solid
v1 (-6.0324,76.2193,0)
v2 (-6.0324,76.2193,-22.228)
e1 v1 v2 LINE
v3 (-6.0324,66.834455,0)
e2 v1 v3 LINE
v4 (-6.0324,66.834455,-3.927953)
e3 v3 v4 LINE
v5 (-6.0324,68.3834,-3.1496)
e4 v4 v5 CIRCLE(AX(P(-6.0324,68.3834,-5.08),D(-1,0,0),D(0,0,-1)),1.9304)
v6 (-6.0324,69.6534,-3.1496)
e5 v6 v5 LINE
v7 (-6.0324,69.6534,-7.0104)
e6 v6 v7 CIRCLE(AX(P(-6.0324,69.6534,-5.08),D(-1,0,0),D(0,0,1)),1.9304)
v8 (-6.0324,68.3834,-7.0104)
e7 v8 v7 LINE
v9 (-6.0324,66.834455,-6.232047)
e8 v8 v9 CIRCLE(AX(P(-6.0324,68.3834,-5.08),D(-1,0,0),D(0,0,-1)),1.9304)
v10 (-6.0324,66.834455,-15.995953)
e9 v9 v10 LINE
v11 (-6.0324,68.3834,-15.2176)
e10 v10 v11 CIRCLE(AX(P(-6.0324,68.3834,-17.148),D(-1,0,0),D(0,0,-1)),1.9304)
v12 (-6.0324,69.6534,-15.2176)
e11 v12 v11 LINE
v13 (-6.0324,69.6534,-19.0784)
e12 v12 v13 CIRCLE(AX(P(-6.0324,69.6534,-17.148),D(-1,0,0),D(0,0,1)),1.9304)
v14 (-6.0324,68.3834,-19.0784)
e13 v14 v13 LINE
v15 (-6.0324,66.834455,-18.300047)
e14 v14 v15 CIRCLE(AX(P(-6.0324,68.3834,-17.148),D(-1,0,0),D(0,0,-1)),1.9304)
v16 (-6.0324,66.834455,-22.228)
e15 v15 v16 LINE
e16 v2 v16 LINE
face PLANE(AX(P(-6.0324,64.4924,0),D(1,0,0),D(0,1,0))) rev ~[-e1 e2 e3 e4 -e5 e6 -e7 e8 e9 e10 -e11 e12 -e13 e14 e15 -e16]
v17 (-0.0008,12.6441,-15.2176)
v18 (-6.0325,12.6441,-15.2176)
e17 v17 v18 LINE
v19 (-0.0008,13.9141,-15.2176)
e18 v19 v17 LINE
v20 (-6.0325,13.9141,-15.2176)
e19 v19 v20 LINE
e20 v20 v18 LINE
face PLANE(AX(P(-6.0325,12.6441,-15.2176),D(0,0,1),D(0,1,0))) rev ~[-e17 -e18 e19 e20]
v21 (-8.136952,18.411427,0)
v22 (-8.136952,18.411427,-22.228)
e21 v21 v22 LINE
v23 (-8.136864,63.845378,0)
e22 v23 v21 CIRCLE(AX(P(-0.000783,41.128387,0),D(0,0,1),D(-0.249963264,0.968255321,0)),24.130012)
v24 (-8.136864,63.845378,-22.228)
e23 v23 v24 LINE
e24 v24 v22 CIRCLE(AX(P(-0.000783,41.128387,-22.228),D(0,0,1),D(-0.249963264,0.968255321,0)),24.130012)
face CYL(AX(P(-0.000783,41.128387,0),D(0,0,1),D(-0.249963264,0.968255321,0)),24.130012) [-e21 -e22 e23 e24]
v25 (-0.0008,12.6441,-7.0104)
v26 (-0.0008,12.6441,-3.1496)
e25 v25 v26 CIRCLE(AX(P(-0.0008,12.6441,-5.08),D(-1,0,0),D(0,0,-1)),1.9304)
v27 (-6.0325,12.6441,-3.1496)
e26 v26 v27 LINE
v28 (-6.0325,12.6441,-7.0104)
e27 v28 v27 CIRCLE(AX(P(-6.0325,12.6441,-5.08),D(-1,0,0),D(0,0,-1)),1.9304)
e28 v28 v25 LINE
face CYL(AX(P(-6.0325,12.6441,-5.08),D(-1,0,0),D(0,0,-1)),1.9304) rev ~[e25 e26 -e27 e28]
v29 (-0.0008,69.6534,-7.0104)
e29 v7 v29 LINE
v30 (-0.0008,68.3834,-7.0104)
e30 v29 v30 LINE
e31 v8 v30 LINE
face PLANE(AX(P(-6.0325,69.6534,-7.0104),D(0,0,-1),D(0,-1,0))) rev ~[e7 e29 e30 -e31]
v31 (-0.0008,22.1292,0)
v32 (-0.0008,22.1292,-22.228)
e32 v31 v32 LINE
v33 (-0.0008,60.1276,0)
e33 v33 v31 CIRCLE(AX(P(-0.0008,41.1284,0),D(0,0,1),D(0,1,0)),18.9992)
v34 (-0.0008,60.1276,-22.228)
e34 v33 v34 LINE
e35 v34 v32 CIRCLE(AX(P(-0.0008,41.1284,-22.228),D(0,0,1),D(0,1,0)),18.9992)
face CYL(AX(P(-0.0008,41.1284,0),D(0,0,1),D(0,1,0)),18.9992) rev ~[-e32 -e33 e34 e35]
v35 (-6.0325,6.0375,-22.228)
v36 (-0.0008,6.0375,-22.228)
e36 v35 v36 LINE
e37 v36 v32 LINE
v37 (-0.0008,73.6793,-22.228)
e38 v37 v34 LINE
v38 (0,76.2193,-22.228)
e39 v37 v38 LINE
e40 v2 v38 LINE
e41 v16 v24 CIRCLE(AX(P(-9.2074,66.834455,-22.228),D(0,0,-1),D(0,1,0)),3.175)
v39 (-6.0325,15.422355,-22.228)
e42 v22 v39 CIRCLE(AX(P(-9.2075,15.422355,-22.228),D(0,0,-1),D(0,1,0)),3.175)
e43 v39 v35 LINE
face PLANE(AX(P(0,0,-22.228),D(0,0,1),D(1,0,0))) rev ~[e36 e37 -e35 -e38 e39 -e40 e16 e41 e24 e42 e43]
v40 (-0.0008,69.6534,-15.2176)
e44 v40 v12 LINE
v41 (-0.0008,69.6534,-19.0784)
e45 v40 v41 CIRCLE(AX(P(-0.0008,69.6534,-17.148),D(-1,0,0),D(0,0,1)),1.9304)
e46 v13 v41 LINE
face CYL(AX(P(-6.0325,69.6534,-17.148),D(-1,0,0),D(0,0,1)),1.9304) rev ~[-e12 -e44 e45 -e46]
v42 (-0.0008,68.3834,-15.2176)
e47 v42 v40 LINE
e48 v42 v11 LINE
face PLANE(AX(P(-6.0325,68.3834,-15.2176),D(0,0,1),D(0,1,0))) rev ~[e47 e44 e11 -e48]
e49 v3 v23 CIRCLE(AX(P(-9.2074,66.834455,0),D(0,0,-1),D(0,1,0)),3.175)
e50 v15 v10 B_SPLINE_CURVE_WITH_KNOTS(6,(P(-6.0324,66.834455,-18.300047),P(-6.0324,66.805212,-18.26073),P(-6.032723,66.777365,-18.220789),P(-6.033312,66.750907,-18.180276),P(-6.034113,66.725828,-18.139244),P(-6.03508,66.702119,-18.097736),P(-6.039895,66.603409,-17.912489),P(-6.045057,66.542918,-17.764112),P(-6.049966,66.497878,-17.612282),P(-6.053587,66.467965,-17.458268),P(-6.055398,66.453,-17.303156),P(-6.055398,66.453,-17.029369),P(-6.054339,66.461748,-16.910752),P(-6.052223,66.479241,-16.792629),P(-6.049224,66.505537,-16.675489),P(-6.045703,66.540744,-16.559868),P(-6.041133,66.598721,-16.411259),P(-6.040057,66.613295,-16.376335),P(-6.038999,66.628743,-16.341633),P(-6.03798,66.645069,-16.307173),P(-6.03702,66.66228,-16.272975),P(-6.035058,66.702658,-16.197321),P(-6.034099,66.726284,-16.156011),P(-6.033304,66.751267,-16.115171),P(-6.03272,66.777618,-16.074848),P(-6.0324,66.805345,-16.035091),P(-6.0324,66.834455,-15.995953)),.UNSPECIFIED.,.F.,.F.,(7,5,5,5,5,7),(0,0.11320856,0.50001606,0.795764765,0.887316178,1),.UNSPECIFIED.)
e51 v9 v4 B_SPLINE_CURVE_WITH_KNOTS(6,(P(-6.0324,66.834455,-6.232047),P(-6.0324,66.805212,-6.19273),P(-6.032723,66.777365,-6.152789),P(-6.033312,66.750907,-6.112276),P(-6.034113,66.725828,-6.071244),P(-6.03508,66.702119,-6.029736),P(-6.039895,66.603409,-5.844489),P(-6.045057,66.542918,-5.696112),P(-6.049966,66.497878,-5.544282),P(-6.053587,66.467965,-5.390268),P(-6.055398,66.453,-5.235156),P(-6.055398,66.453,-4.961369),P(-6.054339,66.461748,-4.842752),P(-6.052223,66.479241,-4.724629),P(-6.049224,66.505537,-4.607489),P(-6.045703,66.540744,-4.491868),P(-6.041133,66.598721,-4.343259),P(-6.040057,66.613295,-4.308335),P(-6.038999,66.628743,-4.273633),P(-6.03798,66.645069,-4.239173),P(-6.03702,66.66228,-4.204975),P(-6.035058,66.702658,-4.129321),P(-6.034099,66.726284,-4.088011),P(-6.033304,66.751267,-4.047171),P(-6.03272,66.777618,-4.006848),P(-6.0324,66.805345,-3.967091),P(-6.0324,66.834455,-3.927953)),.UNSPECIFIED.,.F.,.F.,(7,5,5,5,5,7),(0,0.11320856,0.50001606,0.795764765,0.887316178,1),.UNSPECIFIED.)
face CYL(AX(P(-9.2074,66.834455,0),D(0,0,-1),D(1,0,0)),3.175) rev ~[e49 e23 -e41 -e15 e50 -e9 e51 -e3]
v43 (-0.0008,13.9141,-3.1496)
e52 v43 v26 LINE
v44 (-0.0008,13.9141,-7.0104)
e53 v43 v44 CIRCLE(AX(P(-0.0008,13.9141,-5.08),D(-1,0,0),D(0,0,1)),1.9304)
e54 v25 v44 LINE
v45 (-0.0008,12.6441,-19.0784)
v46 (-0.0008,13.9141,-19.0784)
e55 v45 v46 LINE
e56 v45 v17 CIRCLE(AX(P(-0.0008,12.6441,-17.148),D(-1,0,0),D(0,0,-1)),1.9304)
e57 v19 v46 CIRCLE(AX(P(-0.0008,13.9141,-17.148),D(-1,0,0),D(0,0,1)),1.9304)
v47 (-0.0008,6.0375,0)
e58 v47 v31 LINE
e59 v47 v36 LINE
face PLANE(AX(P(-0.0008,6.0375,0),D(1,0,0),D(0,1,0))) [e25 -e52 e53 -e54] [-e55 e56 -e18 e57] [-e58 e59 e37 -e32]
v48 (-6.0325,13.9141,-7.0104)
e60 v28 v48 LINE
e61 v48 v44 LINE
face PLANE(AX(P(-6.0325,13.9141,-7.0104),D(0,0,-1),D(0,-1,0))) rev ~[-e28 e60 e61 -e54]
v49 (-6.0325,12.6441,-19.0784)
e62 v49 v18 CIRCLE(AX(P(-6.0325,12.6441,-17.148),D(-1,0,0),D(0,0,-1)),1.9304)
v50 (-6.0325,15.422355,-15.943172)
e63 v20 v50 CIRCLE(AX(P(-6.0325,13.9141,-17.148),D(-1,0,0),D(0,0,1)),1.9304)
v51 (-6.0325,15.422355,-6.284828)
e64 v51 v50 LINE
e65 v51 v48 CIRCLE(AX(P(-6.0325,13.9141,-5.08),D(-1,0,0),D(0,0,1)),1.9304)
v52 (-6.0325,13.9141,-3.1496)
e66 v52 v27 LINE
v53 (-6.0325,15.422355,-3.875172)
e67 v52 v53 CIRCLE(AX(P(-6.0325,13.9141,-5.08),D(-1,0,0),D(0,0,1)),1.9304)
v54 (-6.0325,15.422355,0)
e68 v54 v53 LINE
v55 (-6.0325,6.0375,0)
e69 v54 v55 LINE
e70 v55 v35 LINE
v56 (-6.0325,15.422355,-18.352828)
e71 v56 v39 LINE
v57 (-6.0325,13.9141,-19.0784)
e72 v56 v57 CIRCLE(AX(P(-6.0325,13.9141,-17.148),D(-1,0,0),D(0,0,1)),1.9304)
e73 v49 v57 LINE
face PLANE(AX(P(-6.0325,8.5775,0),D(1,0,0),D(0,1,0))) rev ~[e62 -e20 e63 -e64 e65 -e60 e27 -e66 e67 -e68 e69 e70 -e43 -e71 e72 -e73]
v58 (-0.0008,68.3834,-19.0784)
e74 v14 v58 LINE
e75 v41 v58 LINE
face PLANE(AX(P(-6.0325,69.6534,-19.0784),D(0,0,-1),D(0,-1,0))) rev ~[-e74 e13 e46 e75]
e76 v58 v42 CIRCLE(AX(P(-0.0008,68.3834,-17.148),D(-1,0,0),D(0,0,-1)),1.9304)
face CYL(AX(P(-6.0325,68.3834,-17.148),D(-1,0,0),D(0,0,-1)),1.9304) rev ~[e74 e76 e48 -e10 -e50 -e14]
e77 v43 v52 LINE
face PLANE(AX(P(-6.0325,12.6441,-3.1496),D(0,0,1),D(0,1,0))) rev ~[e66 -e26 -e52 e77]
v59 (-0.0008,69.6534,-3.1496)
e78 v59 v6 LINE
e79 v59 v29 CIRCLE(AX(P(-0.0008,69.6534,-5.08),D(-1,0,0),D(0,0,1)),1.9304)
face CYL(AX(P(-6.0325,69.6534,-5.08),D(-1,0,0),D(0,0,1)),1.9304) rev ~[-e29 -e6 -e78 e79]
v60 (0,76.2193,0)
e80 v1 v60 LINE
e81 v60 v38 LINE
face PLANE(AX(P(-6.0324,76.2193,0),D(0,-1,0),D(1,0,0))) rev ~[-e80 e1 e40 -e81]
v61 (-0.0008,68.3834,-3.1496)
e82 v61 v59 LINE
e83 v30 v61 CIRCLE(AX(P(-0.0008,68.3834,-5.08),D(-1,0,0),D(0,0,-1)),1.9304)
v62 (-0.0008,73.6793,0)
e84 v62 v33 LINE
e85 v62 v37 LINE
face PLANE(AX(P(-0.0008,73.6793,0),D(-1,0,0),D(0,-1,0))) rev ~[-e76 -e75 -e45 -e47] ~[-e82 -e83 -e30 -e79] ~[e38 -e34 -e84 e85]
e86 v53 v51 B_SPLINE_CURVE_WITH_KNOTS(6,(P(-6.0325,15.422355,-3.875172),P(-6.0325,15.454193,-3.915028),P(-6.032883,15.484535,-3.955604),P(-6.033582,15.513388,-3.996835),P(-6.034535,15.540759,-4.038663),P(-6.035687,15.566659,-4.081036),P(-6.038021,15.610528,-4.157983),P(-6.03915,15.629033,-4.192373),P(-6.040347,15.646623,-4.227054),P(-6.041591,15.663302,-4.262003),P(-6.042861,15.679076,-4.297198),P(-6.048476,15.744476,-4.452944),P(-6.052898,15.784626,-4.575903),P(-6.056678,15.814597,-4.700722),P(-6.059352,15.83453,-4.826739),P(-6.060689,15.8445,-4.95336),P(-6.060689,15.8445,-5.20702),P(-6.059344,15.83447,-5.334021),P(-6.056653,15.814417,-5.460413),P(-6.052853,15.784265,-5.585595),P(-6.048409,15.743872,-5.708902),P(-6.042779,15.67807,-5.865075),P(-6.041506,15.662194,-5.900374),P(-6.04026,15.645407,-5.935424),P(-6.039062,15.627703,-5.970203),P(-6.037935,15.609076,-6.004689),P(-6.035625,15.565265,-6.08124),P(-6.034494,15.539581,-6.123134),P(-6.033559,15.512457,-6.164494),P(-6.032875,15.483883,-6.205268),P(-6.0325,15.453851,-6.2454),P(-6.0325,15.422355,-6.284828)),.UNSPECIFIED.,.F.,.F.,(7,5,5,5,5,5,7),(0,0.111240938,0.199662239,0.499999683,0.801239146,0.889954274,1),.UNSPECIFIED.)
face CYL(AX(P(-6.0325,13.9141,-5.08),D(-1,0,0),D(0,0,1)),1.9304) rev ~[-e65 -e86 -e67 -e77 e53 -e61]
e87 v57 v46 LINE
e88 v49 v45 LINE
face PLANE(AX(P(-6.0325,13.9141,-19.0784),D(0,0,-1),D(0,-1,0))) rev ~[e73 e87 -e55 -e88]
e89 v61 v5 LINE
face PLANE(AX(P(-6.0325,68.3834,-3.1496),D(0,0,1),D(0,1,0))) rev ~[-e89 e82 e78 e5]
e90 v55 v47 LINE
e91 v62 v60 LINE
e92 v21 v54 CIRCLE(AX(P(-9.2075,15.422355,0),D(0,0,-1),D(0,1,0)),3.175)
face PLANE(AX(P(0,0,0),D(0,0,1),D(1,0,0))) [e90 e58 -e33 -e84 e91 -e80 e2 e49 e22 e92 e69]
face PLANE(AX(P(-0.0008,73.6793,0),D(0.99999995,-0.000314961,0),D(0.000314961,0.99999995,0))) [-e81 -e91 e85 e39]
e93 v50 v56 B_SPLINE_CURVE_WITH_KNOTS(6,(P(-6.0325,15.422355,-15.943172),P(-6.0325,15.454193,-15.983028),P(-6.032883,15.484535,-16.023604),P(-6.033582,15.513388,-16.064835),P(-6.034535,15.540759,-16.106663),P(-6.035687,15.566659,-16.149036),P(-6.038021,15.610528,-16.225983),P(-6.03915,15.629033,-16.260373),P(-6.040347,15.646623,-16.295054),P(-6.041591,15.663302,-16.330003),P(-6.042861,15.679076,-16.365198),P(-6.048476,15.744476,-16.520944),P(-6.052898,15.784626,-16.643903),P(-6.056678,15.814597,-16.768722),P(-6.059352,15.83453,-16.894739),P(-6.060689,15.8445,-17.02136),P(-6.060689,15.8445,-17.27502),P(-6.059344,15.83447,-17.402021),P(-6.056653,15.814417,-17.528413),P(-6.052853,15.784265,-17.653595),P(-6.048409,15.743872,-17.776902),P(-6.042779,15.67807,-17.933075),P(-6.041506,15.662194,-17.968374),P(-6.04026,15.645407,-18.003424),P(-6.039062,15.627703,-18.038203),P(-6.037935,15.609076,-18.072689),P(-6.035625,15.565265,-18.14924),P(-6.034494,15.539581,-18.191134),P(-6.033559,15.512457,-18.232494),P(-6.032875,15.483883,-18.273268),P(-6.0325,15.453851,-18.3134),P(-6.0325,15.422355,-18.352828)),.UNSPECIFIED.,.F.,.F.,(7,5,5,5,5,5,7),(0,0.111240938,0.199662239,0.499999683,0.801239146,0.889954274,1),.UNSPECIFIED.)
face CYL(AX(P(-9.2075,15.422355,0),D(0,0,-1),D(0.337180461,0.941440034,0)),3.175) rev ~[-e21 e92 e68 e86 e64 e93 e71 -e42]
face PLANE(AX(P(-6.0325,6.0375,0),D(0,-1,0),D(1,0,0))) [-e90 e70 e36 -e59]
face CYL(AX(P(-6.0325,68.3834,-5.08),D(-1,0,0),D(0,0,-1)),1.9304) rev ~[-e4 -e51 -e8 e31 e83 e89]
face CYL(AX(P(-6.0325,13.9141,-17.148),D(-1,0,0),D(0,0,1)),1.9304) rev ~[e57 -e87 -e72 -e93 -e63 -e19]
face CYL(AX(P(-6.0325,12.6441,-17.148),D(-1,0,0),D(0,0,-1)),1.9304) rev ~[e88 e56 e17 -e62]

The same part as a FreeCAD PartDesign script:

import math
import FreeCAD as App
import Part
import Sketcher
Q = App.Units.Quantity


def edges_at(feature, points):
    """Names of the edges that pass closest to the given points."""
    edges = feature.Shape.Edges
    near = lambda p: min(range(len(edges)), key=lambda i: edges[i].distToShape(Part.Vertex(*p))[0])
    return sorted({f"Edge{near(p) + 1}" for p in points})

doc = App.newDocument("Part")
body = doc.addObject("PartDesign::Body", "Body")

# Sketch on XY plane
sketch1 = body.newObject("Sketcher::SketchObject", "Sketch")
sketch1.AttachmentSupport = (doc.getObject("XY_Plane"), [""])
sketch1.MapMode = "FlatFace"
sketch1.addGeometry(Part.LineSegment(App.Vector(-6, 76.2, 0), App.Vector(-6, 64.5, 0)), False)
sketch1.addGeometry(Part.ArcOfCircle(Part.Circle(App.Vector(0, 41.1, 0), App.Vector(0, 0, 1), 24.1), math.radians(104), math.radians(256)), False)
sketch1.addGeometry(Part.LineSegment(App.Vector(-6, 17.8, 0), App.Vector(-6, 6, 0)), False)
sketch1.addGeometry(Part.LineSegment(App.Vector(-6, 6, 0), App.Vector(0, 6, 0)), False)
sketch1.addGeometry(Part.LineSegment(App.Vector(0, 6, 0), App.Vector(0, 22.1, 0)), False)
sketch1.addGeometry(Part.ArcOfCircle(Part.Circle(App.Vector(0, 41.1, 0), App.Vector(0, 0, 1), 19), math.radians(90), math.radians(270)), False)
sketch1.addGeometry(Part.LineSegment(App.Vector(0, 60.1, 0), App.Vector(0, 73.7, 0)), False)
sketch1.addGeometry(Part.LineSegment(App.Vector(0, 73.7, 0), App.Vector(0, 76.2, 0)), False)
sketch1.addGeometry(Part.LineSegment(App.Vector(0, 76.2, 0), App.Vector(-6, 76.2, 0)), False)
sketch1.addConstraint(Sketcher.Constraint("Coincident", 0, 2, 1, 1))
sketch1.addConstraint(Sketcher.Constraint("Coincident", 1, 2, 2, 1))
sketch1.addConstraint(Sketcher.Constraint("Coincident", 2, 2, 3, 1))
sketch1.addConstraint(Sketcher.Constraint("Coincident", 3, 2, 4, 1))
sketch1.addConstraint(Sketcher.Constraint("Coincident", 4, 2, 5, 2))
sketch1.addConstraint(Sketcher.Constraint("Coincident", 5, 1, 6, 1))
sketch1.addConstraint(Sketcher.Constraint("Coincident", 6, 2, 7, 1))
sketch1.addConstraint(Sketcher.Constraint("Coincident", 7, 2, 8, 1))
sketch1.addConstraint(Sketcher.Constraint("Coincident", 8, 2, 0, 1))
sketch1.addConstraint(Sketcher.Constraint("Vertical", 0))
sketch1.addConstraint(Sketcher.Constraint("Vertical", 2))
sketch1.addConstraint(Sketcher.Constraint("Horizontal", 3))
sketch1.addConstraint(Sketcher.Constraint("Vertical", 4))
sketch1.addConstraint(Sketcher.Constraint("Vertical", 6))
sketch1.addConstraint(Sketcher.Constraint("Horizontal", 8))
sketch1.addConstraint(Sketcher.Constraint("Coincident", 5, 3, 1, 3))
sketch1.addConstraint(Sketcher.Constraint("PointOnObject", 7, 2, -2))
sketch1.addConstraint(Sketcher.Constraint("Vertical", 0, 2, 1, 2))
sketch1.addConstraint(Sketcher.Constraint("Vertical", 5, 3, 3, 2))
sketch1.addConstraint(Sketcher.Constraint("Vertical", 4, 2, 5, 1))
sketch1.addConstraint(Sketcher.Constraint("Equal", 0, 2))
sketch1.addConstraint(Sketcher.Constraint("Radius", 1, Q("0.95 in")))
sketch1.addConstraint(Sketcher.Constraint("Radius", 5, Q("0.748 in")))
sketch1.addConstraint(Sketcher.Constraint("Distance", 7, Q("0.1 in")))
sketch1.addConstraint(Sketcher.Constraint("DistanceX", 3, 1, 3, 2, Q("6.0317 mm")))
sketch1.addConstraint(Sketcher.Constraint("DistanceX", 8, 2, 8, 1, Q("0.2375 in")))
sketch1.addConstraint(Sketcher.Constraint("DistanceY", 0, 2, 0, 1, Q("0.4617 in")))
sketch1.addConstraint(Sketcher.Constraint("DistanceY", -1, 1, 2, 2, Q("0.2377 in")))
pad1 = body.newObject("PartDesign::Pad", "Pad")
pad1.Profile = sketch1
pad1.Length = 22.228
pad1.Reversed = True
doc.recompute()

fillet = body.newObject("PartDesign::Fillet", "Fillet")
fillet.Base = (pad1, edges_at(pad1, [(-6.032, 64.492, -11.114)]))
fillet.Radius = Q("0.125 in")
doc.recompute()

fillet2 = body.newObject("PartDesign::Fillet", "Fillet001")
fillet2.Base = (fillet, edges_at(fillet, [(-6.032, 17.764, -11.114)]))
fillet2.Radius = Q("0.125 in")

# Sketch on YZ plane
sketch2 = body.newObject("Sketcher::SketchObject", "Sketch001")
sketch2.AttachmentSupport = (doc.getObject("YZ_Plane"), [""])
sketch2.MapMode = "FlatFace"
sketch2.AttachmentOffset = App.Placement(App.Vector(0, 0, -0.2375 * 25.4), App.Rotation())
sketch2.addGeometry(Part.ArcOfCircle(Part.Circle(App.Vector(12.6, -17.1, 0), App.Vector(0, 0, 1), 1.9), math.radians(90), math.radians(270)), False)
sketch2.addGeometry(Part.LineSegment(App.Vector(12.6, -15.2, 0), App.Vector(13.9, -15.2, 0)), False)
sketch2.addGeometry(Part.ArcOfCircle(Part.Circle(App.Vector(13.9, -17.1, 0), App.Vector(0, 0, 1), 1.9), math.radians(-90), math.radians(90)), False)
sketch2.addGeometry(Part.LineSegment(App.Vector(13.9, -19.1, 0), App.Vector(12.6, -19.1, 0)), False)
sketch2.addConstraint(Sketcher.Constraint("Tangent", 0, 1, 1, 1))
sketch2.addConstraint(Sketcher.Constraint("Tangent", 1, 2, 2, 2))
sketch2.addConstraint(Sketcher.Constraint("Tangent", 2, 1, 3, 1))
sketch2.addConstraint(Sketcher.Constraint("Tangent", 3, 2, 0, 2))
sketch2.addConstraint(Sketcher.Constraint("Horizontal", 1))
sketch2.addConstraint(Sketcher.Constraint("Horizontal", 3))
sketch2.addConstraint(Sketcher.Constraint("Radius", 0, Q("0.076 in")))
sketch2.addConstraint(Sketcher.Constraint("DistanceX", 1, 1, 1, 2, Q("0.05 in")))
sketch2.addConstraint(Sketcher.Constraint("DistanceX", -1, 1, 0, 3, Q("0.4978 in")))
sketch2.addConstraint(Sketcher.Constraint("DistanceY", 0, 3, -1, 1, Q("17.148 mm")))
pocket1 = body.newObject("PartDesign::Pocket", "Pocket")
pocket1.Profile = sketch2
pocket1.Type = "ThroughAll"
pocket1.Midplane = True

# Sketch on YZ plane
sketch3 = body.newObject("Sketcher::SketchObject", "Sketch002")
sketch3.AttachmentSupport = (doc.getObject("YZ_Plane"), [""])
sketch3.MapMode = "FlatFace"
sketch3.AttachmentOffset = App.Placement(App.Vector(0, 0, -0.2375 * 25.4), App.Rotation())
sketch3.addGeometry(Part.ArcOfCircle(Part.Circle(App.Vector(12.6, -5.1, 0), App.Vector(0, 0, 1), 1.9), math.radians(90), math.radians(270)), False)
sketch3.addGeometry(Part.LineSegment(App.Vector(12.6, -3.1, 0), App.Vector(13.9, -3.1, 0)), False)
sketch3.addGeometry(Part.ArcOfCircle(Part.Circle(App.Vector(13.9, -5.1, 0), App.Vector(0, 0, 1), 1.9), math.radians(-90), math.radians(90)), False)
sketch3.addGeometry(Part.LineSegment(App.Vector(13.9, -7, 0), App.Vector(12.6, -7, 0)), False)
sketch3.addGeometry(Part.ArcOfCircle(Part.Circle(App.Vector(68.4, -17.1, 0), App.Vector(0, 0, 1), 1.9), math.radians(90), math.radians(270)), False)
sketch3.addGeometry(Part.LineSegment(App.Vector(68.4, -15.2, 0), App.Vector(69.7, -15.2, 0)), False)
sketch3.addGeometry(Part.ArcOfCircle(Part.Circle(App.Vector(69.7, -17.1, 0), App.Vector(0, 0, 1), 1.9), math.radians(-90), math.radians(90)), False)
sketch3.addGeometry(Part.LineSegment(App.Vector(69.7, -19.1, 0), App.Vector(68.4, -19.1, 0)), False)
sketch3.addGeometry(Part.ArcOfCircle(Part.Circle(App.Vector(68.4, -5.1, 0), App.Vector(0, 0, 1), 1.9), math.radians(90), math.radians(270)), False)
sketch3.addGeometry(Part.LineSegment(App.Vector(68.4, -3.1, 0), App.Vector(69.7, -3.1, 0)), False)
sketch3.addGeometry(Part.ArcOfCircle(Part.Circle(App.Vector(69.7, -5.1, 0), App.Vector(0, 0, 1), 1.9), math.radians(-90), math.radians(90)), False)
sketch3.addGeometry(Part.LineSegment(App.Vector(69.7, -7, 0), App.Vector(68.4, -7, 0)), False)
sketch3.addConstraint(Sketcher.Constraint("Tangent", 0, 1, 1, 1))
sketch3.addConstraint(Sketcher.Constraint("Tangent", 1, 2, 2, 2))
sketch3.addConstraint(Sketcher.Constraint("Tangent", 2, 1, 3, 1))
sketch3.addConstraint(Sketcher.Constraint("Tangent", 3, 2, 0, 2))
sketch3.addConstraint(Sketcher.Constraint("Tangent", 4, 1, 5, 1))
sketch3.addConstraint(Sketcher.Constraint("Tangent", 5, 2, 6, 2))
sketch3.addConstraint(Sketcher.Constraint("Tangent", 6, 1, 7, 1))
sketch3.addConstraint(Sketcher.Constraint("Tangent", 7, 2, 4, 2))
sketch3.addConstraint(Sketcher.Constraint("Tangent", 8, 1, 9, 1))
sketch3.addConstraint(Sketcher.Constraint("Tangent", 9, 2, 10, 2))
sketch3.addConstraint(Sketcher.Constraint("Tangent", 10, 1, 11, 1))
sketch3.addConstraint(Sketcher.Constraint("Tangent", 11, 2, 8, 2))
sketch3.addConstraint(Sketcher.Constraint("Horizontal", 1))
sketch3.addConstraint(Sketcher.Constraint("Horizontal", 3))
sketch3.addConstraint(Sketcher.Constraint("Horizontal", 5))
sketch3.addConstraint(Sketcher.Constraint("Horizontal", 7))
sketch3.addConstraint(Sketcher.Constraint("Horizontal", 9))
sketch3.addConstraint(Sketcher.Constraint("Horizontal", 11))
sketch3.addConstraint(Sketcher.Constraint("Equal", 2, 4))
sketch3.addConstraint(Sketcher.Constraint("Equal", 6, 8))
sketch3.addConstraint(Sketcher.Constraint("Horizontal", 2, 3, 8, 3))
sketch3.addConstraint(Sketcher.Constraint("Vertical", 4, 3, 8, 3))
sketch3.addConstraint(Sketcher.Constraint("Vertical", 6, 3, 10, 3))
sketch3.addConstraint(Sketcher.Constraint("Equal", 3, 5))
sketch3.addConstraint(Sketcher.Constraint("Radius", 0, Q("0.076 in")))
sketch3.addConstraint(Sketcher.Constraint("DistanceX", 1, 1, 1, 2, Q("0.05 in")))
sketch3.addConstraint(Sketcher.Constraint("DistanceY", 0, 3, -1, 1, Q("0.2 in")))
sketch3.addConstraint(Sketcher.Constraint("DistanceX", -1, 1, 0, 3, Q("0.4978 in")))
sketch3.addConstraint(Sketcher.Constraint("DistanceX", -1, 1, 4, 3, Q("68.3834 mm")))
sketch3.addConstraint(Sketcher.Constraint("DistanceY", 4, 3, -1, 1, Q("17.148 mm")))
pocket2 = body.newObject("PartDesign::Pocket", "Pocket001")
pocket2.Profile = sketch3
pocket2.Type = "ThroughAll"
pocket2.Midplane = True

doc.recompute()
